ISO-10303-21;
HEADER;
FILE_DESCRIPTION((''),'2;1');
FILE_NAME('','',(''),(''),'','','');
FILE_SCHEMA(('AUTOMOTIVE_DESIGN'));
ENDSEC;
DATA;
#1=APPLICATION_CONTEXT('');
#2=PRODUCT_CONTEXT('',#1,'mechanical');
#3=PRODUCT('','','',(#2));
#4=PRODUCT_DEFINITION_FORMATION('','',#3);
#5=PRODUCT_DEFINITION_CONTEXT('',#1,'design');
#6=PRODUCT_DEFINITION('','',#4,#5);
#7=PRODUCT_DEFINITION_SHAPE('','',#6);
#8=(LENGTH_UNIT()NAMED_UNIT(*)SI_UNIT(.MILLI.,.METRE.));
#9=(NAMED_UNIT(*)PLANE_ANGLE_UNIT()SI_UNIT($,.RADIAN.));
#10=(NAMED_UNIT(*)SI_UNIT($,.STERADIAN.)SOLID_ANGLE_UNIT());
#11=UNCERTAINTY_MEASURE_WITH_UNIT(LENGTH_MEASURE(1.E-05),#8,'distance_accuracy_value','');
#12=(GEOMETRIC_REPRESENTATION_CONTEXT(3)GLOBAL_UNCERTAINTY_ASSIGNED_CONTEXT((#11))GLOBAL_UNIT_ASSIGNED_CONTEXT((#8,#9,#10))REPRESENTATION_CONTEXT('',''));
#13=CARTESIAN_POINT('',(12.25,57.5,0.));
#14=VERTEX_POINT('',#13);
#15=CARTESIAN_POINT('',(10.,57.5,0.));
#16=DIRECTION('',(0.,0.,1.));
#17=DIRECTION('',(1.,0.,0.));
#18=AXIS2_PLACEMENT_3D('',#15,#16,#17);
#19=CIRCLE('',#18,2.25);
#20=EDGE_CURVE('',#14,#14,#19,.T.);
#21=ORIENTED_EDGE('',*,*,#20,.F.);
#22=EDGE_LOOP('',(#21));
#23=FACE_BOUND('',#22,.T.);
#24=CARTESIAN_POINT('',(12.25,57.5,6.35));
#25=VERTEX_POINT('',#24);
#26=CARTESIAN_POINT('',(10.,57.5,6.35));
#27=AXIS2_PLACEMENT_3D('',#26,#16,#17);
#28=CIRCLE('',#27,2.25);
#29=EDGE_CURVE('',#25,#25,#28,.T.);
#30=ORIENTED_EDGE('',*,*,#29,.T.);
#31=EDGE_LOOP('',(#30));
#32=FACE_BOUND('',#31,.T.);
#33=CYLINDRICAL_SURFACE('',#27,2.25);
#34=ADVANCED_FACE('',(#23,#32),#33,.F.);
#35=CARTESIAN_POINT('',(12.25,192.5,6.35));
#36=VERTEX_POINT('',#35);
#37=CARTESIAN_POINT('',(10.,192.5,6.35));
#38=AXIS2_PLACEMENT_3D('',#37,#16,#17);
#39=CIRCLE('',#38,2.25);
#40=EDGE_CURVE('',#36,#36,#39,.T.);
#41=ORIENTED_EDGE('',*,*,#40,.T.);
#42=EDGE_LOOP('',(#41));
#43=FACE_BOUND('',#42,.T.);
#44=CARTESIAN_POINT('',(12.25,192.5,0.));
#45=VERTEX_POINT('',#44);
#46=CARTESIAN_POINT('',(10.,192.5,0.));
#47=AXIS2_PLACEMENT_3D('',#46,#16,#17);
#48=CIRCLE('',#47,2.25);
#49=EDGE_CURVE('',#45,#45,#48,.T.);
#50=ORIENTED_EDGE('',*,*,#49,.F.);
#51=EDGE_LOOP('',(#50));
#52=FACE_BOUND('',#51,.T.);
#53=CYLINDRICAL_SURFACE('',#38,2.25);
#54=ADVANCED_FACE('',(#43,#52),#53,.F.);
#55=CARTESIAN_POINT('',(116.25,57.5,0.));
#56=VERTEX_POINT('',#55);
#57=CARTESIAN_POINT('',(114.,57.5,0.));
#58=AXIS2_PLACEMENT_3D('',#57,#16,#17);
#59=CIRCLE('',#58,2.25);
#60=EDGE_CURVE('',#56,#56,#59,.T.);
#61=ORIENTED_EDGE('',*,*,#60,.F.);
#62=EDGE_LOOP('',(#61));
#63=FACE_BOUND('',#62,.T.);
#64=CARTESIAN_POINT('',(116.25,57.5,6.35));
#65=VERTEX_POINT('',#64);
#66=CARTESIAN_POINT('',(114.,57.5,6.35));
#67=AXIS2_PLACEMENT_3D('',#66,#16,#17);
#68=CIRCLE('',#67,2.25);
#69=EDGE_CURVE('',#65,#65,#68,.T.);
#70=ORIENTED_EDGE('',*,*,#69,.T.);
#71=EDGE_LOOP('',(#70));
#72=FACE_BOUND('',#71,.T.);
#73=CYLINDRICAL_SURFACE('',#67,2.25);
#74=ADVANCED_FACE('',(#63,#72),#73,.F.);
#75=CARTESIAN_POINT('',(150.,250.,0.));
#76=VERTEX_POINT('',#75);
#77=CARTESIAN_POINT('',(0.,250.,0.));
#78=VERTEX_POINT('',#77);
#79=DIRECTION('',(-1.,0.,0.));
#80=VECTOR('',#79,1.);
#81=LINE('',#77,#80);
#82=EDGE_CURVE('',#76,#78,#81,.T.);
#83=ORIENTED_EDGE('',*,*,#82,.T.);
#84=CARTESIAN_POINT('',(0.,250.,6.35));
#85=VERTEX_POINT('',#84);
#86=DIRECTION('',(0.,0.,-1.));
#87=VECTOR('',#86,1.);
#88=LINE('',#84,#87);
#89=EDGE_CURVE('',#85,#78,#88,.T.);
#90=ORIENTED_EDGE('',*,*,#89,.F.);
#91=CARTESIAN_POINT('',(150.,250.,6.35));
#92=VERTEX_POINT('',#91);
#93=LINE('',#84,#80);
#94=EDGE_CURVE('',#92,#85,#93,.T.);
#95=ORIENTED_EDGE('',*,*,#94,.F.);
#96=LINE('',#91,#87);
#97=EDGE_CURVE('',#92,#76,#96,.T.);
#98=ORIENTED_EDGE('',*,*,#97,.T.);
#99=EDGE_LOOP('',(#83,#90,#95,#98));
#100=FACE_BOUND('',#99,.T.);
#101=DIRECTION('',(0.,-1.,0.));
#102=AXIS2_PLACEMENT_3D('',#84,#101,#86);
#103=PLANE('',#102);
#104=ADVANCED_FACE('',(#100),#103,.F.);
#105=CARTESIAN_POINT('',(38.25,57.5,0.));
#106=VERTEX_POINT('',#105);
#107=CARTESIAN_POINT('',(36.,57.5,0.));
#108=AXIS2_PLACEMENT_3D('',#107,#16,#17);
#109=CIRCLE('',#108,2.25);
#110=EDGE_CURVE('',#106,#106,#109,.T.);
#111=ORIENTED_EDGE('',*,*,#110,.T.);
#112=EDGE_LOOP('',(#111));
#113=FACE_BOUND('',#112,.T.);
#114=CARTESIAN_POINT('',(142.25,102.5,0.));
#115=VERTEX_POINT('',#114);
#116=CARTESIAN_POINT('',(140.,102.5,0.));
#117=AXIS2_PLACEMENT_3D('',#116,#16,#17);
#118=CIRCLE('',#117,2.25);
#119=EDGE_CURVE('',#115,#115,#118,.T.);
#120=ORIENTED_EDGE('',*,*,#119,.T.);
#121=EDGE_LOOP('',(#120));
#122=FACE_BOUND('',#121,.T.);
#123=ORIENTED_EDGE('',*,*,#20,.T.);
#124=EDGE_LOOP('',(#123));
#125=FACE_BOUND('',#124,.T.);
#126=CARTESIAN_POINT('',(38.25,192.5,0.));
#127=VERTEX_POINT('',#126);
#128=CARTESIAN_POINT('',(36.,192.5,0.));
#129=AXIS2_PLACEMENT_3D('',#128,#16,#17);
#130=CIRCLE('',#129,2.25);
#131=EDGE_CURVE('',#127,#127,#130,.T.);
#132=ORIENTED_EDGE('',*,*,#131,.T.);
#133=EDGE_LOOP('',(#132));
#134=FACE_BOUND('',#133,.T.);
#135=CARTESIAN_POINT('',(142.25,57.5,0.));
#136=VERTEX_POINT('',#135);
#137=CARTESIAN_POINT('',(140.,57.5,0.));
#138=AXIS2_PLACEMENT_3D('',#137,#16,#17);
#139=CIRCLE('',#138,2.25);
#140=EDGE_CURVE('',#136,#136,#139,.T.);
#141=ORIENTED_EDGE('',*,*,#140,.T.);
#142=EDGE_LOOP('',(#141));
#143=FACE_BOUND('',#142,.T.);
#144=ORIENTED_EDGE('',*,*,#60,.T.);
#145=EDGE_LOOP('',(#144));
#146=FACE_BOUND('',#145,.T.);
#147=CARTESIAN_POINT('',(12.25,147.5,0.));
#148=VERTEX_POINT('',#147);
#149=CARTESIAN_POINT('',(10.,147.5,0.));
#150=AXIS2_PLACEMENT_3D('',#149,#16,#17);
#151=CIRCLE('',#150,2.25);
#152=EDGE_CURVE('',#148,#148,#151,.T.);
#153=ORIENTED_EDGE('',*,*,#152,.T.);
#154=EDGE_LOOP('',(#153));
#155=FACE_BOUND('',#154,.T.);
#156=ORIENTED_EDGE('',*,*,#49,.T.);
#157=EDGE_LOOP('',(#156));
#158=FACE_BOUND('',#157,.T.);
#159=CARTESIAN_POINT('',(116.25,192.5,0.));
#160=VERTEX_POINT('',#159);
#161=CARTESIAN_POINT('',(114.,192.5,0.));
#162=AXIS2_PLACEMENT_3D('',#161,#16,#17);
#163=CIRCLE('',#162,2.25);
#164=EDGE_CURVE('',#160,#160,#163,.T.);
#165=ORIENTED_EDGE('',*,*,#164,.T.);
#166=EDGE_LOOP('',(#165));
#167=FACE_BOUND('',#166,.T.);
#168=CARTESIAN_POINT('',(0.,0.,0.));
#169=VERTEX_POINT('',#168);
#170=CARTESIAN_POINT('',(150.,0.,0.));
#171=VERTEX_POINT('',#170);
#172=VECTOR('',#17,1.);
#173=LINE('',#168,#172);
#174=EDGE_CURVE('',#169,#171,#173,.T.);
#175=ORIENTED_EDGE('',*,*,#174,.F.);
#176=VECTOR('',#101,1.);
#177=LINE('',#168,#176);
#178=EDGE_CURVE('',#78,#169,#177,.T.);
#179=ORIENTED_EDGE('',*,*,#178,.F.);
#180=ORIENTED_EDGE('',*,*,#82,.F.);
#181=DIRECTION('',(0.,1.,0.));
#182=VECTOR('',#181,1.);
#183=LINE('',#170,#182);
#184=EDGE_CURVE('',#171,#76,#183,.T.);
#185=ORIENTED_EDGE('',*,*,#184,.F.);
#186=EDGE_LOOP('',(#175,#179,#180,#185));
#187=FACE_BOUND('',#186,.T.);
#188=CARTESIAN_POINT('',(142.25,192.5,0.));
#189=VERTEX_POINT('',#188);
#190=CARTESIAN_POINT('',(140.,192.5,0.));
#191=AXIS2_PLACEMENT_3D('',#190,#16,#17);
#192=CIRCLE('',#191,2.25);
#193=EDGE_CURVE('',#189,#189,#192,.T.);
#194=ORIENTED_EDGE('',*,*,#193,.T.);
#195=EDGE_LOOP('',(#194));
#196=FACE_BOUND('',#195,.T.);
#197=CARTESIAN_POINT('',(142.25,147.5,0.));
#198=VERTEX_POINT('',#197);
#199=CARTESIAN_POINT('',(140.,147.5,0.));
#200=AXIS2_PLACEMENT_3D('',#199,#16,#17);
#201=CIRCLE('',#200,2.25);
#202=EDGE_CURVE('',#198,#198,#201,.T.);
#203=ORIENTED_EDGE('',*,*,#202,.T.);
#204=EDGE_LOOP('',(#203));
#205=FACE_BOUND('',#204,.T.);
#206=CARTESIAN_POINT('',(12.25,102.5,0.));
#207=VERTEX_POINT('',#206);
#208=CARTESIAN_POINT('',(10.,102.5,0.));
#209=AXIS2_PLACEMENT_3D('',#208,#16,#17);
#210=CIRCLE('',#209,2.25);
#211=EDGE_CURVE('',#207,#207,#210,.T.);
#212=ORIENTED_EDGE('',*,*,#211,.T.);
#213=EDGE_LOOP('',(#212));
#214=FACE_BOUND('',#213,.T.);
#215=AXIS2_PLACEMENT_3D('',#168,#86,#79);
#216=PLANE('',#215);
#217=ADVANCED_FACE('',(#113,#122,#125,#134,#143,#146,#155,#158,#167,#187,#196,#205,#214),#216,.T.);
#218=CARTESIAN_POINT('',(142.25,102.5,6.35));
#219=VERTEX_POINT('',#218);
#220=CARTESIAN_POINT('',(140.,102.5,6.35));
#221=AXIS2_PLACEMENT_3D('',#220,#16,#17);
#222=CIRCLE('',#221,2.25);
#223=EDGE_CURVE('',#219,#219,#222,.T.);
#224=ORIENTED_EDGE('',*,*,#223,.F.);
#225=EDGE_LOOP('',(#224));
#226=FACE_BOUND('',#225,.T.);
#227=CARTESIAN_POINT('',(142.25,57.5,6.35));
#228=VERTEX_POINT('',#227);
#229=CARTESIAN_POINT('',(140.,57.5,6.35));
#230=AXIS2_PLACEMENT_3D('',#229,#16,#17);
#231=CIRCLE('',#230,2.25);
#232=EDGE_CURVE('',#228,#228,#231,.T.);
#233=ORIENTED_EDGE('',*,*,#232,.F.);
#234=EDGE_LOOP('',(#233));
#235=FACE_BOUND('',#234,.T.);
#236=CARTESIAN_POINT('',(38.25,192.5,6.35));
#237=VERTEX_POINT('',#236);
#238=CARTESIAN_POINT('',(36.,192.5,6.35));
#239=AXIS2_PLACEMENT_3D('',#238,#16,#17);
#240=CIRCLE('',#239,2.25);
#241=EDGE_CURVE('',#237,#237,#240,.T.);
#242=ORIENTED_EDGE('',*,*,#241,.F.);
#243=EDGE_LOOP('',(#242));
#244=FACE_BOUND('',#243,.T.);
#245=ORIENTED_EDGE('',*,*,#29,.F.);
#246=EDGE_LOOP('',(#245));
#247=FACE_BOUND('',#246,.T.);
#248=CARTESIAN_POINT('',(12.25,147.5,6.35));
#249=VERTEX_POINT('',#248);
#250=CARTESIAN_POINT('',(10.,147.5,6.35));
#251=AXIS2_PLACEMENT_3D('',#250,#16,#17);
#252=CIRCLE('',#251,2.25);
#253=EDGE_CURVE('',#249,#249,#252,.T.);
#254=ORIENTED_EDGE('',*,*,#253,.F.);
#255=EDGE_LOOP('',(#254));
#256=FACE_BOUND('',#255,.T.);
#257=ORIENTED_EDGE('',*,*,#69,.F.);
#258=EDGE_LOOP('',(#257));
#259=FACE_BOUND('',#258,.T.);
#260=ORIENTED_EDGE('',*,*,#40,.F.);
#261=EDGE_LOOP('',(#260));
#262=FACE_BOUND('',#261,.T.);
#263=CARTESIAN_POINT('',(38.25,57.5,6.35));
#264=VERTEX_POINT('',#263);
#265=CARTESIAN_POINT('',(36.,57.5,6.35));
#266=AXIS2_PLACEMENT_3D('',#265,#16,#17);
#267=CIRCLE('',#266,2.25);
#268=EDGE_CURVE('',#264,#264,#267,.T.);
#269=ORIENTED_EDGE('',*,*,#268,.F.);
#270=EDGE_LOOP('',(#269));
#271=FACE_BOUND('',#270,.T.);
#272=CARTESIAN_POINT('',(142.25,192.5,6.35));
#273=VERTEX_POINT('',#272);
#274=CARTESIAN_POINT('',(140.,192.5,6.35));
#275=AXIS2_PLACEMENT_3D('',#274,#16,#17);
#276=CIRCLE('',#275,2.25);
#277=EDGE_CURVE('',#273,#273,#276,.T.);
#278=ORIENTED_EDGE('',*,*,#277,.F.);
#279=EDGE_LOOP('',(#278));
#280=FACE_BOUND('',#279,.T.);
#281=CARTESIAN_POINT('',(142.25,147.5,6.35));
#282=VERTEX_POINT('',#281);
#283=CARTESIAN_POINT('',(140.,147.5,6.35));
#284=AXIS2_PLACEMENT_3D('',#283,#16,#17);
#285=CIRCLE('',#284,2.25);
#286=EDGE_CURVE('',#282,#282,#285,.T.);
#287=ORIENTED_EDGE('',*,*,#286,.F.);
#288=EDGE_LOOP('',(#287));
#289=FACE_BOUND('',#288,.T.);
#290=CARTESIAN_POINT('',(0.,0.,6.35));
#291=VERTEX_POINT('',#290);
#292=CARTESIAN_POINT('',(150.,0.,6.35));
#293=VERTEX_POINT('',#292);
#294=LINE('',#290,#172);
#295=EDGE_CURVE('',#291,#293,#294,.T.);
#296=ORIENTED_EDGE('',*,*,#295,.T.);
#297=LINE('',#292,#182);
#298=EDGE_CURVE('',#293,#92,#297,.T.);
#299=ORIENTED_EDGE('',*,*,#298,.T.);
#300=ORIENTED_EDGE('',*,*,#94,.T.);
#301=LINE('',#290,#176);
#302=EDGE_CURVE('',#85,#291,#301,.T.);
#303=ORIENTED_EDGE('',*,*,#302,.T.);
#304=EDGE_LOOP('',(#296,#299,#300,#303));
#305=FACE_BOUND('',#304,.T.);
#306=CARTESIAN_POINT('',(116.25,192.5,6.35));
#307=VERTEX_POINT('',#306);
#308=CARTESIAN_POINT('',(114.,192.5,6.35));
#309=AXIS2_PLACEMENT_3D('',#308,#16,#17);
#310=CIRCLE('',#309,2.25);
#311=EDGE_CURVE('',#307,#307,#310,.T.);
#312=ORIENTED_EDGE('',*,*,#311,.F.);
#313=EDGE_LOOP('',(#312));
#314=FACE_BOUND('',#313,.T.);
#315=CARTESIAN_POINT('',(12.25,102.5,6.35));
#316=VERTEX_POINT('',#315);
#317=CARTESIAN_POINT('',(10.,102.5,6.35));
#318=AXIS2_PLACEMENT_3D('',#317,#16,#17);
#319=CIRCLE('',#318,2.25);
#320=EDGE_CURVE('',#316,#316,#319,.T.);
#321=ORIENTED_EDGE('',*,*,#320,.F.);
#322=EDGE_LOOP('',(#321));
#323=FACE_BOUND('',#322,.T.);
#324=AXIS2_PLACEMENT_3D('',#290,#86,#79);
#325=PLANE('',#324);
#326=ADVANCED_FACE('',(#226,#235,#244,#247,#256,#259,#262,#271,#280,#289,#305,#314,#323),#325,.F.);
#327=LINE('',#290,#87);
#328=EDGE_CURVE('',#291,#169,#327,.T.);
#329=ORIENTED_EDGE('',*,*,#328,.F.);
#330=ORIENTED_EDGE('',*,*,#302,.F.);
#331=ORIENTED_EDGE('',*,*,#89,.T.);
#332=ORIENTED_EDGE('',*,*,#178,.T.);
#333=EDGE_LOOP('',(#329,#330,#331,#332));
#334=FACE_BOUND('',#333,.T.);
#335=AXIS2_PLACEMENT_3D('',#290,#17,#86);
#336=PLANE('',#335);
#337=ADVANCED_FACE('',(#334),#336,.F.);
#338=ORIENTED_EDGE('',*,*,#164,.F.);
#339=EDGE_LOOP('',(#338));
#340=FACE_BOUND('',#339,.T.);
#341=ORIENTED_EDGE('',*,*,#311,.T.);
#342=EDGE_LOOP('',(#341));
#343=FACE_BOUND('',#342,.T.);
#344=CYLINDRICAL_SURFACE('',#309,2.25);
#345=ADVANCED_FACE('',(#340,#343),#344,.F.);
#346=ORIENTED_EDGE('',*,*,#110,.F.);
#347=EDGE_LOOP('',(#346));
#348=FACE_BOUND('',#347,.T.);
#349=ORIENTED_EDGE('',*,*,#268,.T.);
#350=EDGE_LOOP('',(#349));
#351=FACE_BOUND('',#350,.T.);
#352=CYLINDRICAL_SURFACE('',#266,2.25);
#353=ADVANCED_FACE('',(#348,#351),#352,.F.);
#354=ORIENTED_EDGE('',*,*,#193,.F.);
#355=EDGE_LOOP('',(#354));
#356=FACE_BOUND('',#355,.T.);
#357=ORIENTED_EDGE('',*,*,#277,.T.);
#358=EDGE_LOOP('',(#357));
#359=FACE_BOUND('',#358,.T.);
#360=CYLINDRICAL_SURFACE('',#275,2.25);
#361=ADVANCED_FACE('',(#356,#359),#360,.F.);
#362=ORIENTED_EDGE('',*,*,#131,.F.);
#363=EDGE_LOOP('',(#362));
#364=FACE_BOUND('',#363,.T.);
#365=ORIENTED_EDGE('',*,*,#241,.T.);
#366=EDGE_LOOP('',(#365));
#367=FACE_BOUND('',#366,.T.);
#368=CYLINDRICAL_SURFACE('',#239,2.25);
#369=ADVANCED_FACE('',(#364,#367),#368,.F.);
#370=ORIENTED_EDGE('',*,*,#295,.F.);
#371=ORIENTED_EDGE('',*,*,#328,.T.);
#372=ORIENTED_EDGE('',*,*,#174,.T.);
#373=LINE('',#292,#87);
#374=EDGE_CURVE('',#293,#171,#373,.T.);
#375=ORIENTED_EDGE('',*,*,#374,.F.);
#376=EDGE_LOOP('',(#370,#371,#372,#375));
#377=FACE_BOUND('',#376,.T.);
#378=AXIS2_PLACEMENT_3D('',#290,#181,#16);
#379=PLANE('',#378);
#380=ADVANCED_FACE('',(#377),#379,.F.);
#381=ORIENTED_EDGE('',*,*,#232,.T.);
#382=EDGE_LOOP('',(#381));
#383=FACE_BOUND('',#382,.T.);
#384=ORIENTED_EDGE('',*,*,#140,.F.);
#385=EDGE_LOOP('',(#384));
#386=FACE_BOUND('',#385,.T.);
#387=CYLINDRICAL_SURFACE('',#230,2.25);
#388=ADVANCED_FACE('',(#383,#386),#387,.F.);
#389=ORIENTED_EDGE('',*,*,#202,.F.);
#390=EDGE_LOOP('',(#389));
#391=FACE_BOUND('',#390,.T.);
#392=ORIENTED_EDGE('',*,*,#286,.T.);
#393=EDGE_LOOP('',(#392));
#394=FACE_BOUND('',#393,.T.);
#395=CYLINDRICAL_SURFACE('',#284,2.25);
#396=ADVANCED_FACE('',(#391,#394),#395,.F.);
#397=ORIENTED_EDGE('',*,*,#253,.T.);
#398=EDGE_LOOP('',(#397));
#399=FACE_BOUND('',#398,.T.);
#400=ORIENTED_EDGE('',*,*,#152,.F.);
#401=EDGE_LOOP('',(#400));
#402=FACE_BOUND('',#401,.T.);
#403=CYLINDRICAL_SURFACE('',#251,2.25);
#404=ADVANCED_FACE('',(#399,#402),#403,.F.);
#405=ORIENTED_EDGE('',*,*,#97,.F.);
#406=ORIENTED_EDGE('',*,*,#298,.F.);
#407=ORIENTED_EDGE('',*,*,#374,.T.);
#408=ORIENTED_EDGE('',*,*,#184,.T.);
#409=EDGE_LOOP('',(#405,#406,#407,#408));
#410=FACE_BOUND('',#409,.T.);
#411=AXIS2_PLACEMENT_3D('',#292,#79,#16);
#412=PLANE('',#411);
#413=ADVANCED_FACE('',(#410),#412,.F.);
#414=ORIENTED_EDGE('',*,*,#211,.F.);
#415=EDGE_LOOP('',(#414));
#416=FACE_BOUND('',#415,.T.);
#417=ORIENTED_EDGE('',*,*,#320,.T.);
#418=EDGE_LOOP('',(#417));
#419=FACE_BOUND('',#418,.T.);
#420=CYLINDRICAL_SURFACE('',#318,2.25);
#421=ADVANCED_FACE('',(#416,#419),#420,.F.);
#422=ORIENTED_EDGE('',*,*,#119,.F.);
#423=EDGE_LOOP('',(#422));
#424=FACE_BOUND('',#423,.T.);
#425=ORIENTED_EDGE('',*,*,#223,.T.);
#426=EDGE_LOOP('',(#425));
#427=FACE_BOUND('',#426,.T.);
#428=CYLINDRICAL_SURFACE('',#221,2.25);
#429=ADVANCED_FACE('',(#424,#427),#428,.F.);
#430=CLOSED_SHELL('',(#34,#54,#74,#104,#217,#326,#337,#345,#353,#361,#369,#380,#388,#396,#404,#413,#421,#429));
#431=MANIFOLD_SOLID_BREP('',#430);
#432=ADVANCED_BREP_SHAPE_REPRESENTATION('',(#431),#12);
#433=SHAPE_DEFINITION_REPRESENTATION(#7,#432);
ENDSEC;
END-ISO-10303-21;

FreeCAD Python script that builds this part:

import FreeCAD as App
import Part
import Sketcher
from FreeCAD import Vector


def add_polygon(sketch, points):
    """Adds a closed chain of lines whose ends are joined by coincident constraints."""
    first, n = sketch.GeometryCount, len(points)
    for a, b in zip(points, points[1:] + points[:1]):
        sketch.addGeometry(Part.LineSegment(App.Vector(*a, 0), App.Vector(*b, 0)), False)
    for i in range(n):
        sketch.addConstraint(Sketcher.Constraint("Coincident", first + i, 2, first + (i + 1) % n, 1))

doc = App.newDocument("Part")
params = doc.addObject("Spreadsheet::Sheet", "Params")
for row, (alias, value) in enumerate([
    ("sketch1_width", "150 mm"),
    ("sketch1_height", "250 mm"),
    ("pad1_length", "6.35 mm"),
    ("sketch2_diameter", "4.5 mm"),
    ("hole_diameter", "4.5 mm"),
    ("sketch3_diameter", "4.5 mm"),
    ("hole2_diameter", "4.5 mm"),
], start=1):
    params.set(f"A{row}", alias)
    params.set(f"B{row}", "=" + value)
    params.setAlias(f"B{row}", alias)

body = doc.addObject("PartDesign::Body", "Body")

# Sketch on XY plane
sketch1 = body.newObject("Sketcher::SketchObject", "Sketch")
sketch1.AttachmentSupport = (doc.getObject("XY_Plane"), [""])
sketch1.MapMode = "FlatFace"
add_polygon(sketch1, [(0, 250), (0, 0), (150, 0), (150, 250)])  # lines 0-3
sketch1.addConstraint(Sketcher.Constraint("Vertical", 0))
sketch1.addConstraint(Sketcher.Constraint("Horizontal", 1))
sketch1.addConstraint(Sketcher.Constraint("Vertical", 2))
sketch1.addConstraint(Sketcher.Constraint("Horizontal", 3))
sketch1.addConstraint(Sketcher.Constraint("Coincident", 0, 2, -1, 1))
sketch1.addConstraint(Sketcher.Constraint("DistanceX", 1, 1, 1, 2, 150.0))
sketch1.addConstraint(Sketcher.Constraint("DistanceY", 0, 2, 0, 1, 250.0))
sketch1.setExpression("Constraints[9]", "Params.sketch1_width")
sketch1.setExpression("Constraints[10]", "Params.sketch1_height")
pad1 = body.newObject("PartDesign::Pad", "Pad")
pad1.Profile = sketch1
pad1.setExpression("Length", "Params.pad1_length")

# Sketch on XY plane
sketch2 = body.newObject("Sketcher::SketchObject", "Sketch001")
sketch2.AttachmentSupport = (doc.getObject("XY_Plane"), [""])
sketch2.MapMode = "FlatFace"
sketch2.AttachmentOffset = App.Placement(Vector(0, 0, 6.35), App.Rotation())
sketch2.addGeometry(Part.Circle(Vector(10, 192.5, 0), Vector(0, 0, 1), 2.25), False)
sketch2.addGeometry(Part.Circle(Vector(10, 147.5, 0), Vector(0, 0, 1), 2.25), False)
sketch2.addGeometry(Part.Circle(Vector(10, 102.5, 0), Vector(0, 0, 1), 2.25), False)
sketch2.addGeometry(Part.Circle(Vector(140, 192.5, 0), Vector(0, 0, 1), 2.25), False)
sketch2.addGeometry(Part.Circle(Vector(140, 147.5, 0), Vector(0, 0, 1), 2.25), False)
sketch2.addGeometry(Part.Circle(Vector(140, 102.5, 0), Vector(0, 0, 1), 2.25), False)
sketch2.addGeometry(Part.Circle(Vector(10, 57.5, 0), Vector(0, 0, 1), 2.25), False)
sketch2.addGeometry(Part.Circle(Vector(140, 57.5, 0), Vector(0, 0, 1), 2.25), False)
sketch2.addConstraint(Sketcher.Constraint("Equal", 0, 1))
sketch2.addConstraint(Sketcher.Constraint("Equal", 1, 2))
sketch2.addConstraint(Sketcher.Constraint("Equal", 2, 3))
sketch2.addConstraint(Sketcher.Constraint("Equal", 3, 4))
sketch2.addConstraint(Sketcher.Constraint("Equal", 4, 5))
sketch2.addConstraint(Sketcher.Constraint("Equal", 5, 6))
sketch2.addConstraint(Sketcher.Constraint("Equal", 6, 7))
sketch2.addConstraint(Sketcher.Constraint("Horizontal", 0, 3, 3, 3))
sketch2.addConstraint(Sketcher.Constraint("Horizontal", 1, 3, 4, 3))
sketch2.addConstraint(Sketcher.Constraint("Horizontal", 2, 3, 5, 3))
sketch2.addConstraint(Sketcher.Constraint("Horizontal", 6, 3, 7, 3))
sketch2.addConstraint(Sketcher.Constraint("Vertical", 0, 3, 1, 3))
sketch2.addConstraint(Sketcher.Constraint("Vertical", 1, 3, 2, 3))
sketch2.addConstraint(Sketcher.Constraint("Vertical", 3, 3, 4, 3))
sketch2.addConstraint(Sketcher.Constraint("Vertical", 4, 3, 5, 3))
sketch2.addConstraint(Sketcher.Constraint("Vertical", 2, 3, 6, 3))
sketch2.addConstraint(Sketcher.Constraint("Vertical", 5, 3, 7, 3))
sketch2.addConstraint(Sketcher.Constraint("Diameter", 0, 4.5))
sketch2.addConstraint(Sketcher.Constraint("DistanceX", -1, 1, 0, 3, 10.0))
sketch2.addConstraint(Sketcher.Constraint("DistanceX", -1, 1, 3, 3, 140.0))
sketch2.addConstraint(Sketcher.Constraint("DistanceY", 1, 3, 0, 3, 45.0))
sketch2.addConstraint(Sketcher.Constraint("DistanceY", 2, 3, 1, 3, 45.0))
sketch2.addConstraint(Sketcher.Constraint("DistanceY", 6, 3, 2, 3, 45.0))
sketch2.addConstraint(Sketcher.Constraint("DistanceY", -1, 1, 0, 3, 192.5))
sketch2.setExpression("Constraints[17]", "Params.sketch2_diameter")
doc.recompute()
hole = body.newObject("PartDesign::Hole", "Hole")
hole.Profile = sketch2
hole.ThreadType = "None"
hole.setExpression("Diameter", "Params.hole_diameter")
hole.DepthType = "ThroughAll"

# Sketch on XY plane
sketch3 = body.newObject("Sketcher::SketchObject", "Sketch002")
sketch3.AttachmentSupport = (doc.getObject("XY_Plane"), [""])
sketch3.MapMode = "FlatFace"
sketch3.AttachmentOffset = App.Placement(Vector(0, 0, 6.35), App.Rotation())
sketch3.addGeometry(Part.Circle(Vector(36, 57.5, 0), Vector(0, 0, 1), 2.25), False)
sketch3.addGeometry(Part.Circle(Vector(36, 192.5, 0), Vector(0, 0, 1), 2.25), False)
sketch3.addGeometry(Part.Circle(Vector(114, 192.5, 0), Vector(0, 0, 1), 2.25), False)
sketch3.addGeometry(Part.Circle(Vector(114, 57.5, 0), Vector(0, 0, 1), 2.25), False)
sketch3.addConstraint(Sketcher.Constraint("Equal", 0, 1))
sketch3.addConstraint(Sketcher.Constraint("Equal", 1, 2))
sketch3.addConstraint(Sketcher.Constraint("Equal", 2, 3))
sketch3.addConstraint(Sketcher.Constraint("Horizontal", 1, 3, 2, 3))
sketch3.addConstraint(Sketcher.Constraint("Horizontal", 0, 3, 3, 3))
sketch3.addConstraint(Sketcher.Constraint("Vertical", 0, 3, 1, 3))
sketch3.addConstraint(Sketcher.Constraint("Vertical", 2, 3, 3, 3))
sketch3.addConstraint(Sketcher.Constraint("Diameter", 0, 4.5))
sketch3.addConstraint(Sketcher.Constraint("DistanceX", -1, 1, 0, 3, 36.0))
sketch3.addConstraint(Sketcher.Constraint("DistanceX", -1, 1, 2, 3, 114.0))
sketch3.addConstraint(Sketcher.Constraint("DistanceY", 0, 3, 1, 3, 135.0))
sketch3.addConstraint(Sketcher.Constraint("DistanceY", -1, 1, 0, 3, 57.5))
sketch3.setExpression("Constraints[7]", "Params.sketch3_diameter")
doc.recompute()
hole2 = body.newObject("PartDesign::Hole", "Hole001")
hole2.Profile = sketch3
hole2.ThreadType = "None"
hole2.setExpression("Diameter", "Params.hole2_diameter")
hole2.DepthType = "ThroughAll"

doc.recompute()
